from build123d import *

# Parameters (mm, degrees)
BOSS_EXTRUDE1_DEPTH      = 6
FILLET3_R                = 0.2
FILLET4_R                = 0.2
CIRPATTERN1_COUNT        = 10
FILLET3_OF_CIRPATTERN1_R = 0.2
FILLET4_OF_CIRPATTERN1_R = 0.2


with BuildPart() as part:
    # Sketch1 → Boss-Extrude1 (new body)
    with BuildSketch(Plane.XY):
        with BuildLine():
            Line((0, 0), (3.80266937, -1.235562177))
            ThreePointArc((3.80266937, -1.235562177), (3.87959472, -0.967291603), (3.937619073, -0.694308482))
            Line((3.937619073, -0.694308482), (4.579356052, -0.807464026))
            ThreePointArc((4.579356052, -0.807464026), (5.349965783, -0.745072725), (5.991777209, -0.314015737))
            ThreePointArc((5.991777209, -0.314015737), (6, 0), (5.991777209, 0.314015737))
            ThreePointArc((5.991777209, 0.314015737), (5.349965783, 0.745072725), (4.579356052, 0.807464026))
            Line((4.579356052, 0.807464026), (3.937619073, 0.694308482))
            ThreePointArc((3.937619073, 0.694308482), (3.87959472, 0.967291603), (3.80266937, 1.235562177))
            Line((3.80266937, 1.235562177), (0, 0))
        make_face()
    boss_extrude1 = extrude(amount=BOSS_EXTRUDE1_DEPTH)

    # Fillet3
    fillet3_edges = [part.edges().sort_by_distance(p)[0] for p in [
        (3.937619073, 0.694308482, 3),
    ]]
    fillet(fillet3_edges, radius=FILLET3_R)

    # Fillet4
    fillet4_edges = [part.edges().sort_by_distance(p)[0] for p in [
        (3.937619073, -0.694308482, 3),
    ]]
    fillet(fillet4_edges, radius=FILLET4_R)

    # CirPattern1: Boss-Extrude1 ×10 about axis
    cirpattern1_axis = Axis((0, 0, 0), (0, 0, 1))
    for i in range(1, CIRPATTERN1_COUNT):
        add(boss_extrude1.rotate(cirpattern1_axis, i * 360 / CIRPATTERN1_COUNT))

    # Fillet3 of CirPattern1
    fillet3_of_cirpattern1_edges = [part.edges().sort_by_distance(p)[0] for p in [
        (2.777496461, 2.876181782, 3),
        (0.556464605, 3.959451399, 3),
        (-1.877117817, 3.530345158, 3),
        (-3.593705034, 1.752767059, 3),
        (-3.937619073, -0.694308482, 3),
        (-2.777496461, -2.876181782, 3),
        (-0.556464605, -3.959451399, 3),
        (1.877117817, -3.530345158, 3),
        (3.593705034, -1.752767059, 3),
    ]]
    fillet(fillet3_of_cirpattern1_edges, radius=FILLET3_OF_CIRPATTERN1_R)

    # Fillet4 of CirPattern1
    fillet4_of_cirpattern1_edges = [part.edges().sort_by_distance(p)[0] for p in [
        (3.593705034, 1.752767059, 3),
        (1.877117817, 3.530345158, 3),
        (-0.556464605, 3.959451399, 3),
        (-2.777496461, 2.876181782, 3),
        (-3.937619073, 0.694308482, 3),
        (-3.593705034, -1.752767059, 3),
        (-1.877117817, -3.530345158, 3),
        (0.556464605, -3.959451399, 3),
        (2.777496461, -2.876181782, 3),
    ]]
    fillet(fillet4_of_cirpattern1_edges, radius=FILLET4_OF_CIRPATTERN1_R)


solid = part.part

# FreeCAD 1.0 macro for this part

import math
import FreeCAD as App
import Part
import Sketcher
from FreeCAD import Vector
Q = App.Units.Quantity


def edges_at(feature, points):
    """Names of the edges that pass closest to the given points."""
    edges = feature.Shape.Edges
    near = lambda p: min(range(len(edges)), key=lambda i: edges[i].distToShape(Part.Vertex(*p))[0])
    return sorted({f"Edge{near(p) + 1}" for p in points})

doc = App.newDocument("Part")
params = doc.addObject("Spreadsheet::Sheet", "Params")
for row, (alias, value) in enumerate([
    ("sketch1_radius", "6 mm"),
    ("pad1_length", "6 mm"),
    ("fillet_radius", "0.2 mm"),
    ("fillet2_radius", "0.2 mm"),
    ("fillet3_radius", "0.2 mm"),
    ("fillet4_radius", "0.2 mm"),
], start=1):
    params.set(f"A{row}", alias)
    params.set(f"B{row}", "=" + value)
    params.setAlias(f"B{row}", alias)

body = doc.addObject("PartDesign::Body", "Body")

sketch1 = body.newObject("Sketcher::SketchObject", "Sketch")
sketch1.AttachmentSupport = (doc.getObject("XY_Plane"), [""])
sketch1.MapMode = "FlatFace"
sketch1.addGeometry(Part.LineSegment(Vector(0, 0, 0), Vector(3.8, -1.2, 0)), False)
sketch1.addGeometry(Part.ArcOfCircle(Part.Circle(Vector(0, 0, 0), Vector(0, 0, 1), 4), math.radians(-18), math.radians(-10)), False)
sketch1.addGeometry(Part.LineSegment(Vector(3.9, -0.7, 0), Vector(4.6, -0.8, 0)), False)
sketch1.addGeometry(Part.ArcOfCircle(Part.Circle(Vector(4.8, 0.7, 0), Vector(0, 0, 1), 1.5), math.radians(-100), math.radians(-41)), False)
sketch1.addGeometry(Part.ArcOfCircle(Part.Circle(Vector(0, 0, 0), Vector(0, 0, 1), 6), math.radians(-3), math.radians(3)), False)
sketch1.addGeometry(Part.ArcOfCircle(Part.Circle(Vector(4.8, -0.7, 0), Vector(0, 0, 1), 1.5), math.radians(41), math.radians(100)), False)
sketch1.addGeometry(Part.LineSegment(Vector(4.6, 0.8, 0), Vector(3.9, 0.7, 0)), False)
sketch1.addGeometry(Part.ArcOfCircle(Part.Circle(Vector(0, 0, 0), Vector(0, 0, 1), 4), math.radians(10), math.radians(18)), False)
sketch1.addGeometry(Part.LineSegment(Vector(3.8, 1.2, 0), Vector(0, 0, 0)), False)
sketch1.addConstraint(Sketcher.Constraint("Coincident", 0, 2, 1, 1))
sketch1.addConstraint(Sketcher.Constraint("Coincident", 1, 2, 2, 1))
sketch1.addConstraint(Sketcher.Constraint("Tangent", 2, 2, 3, 1))
sketch1.addConstraint(Sketcher.Constraint("Coincident", 3, 2, 4, 1))
sketch1.addConstraint(Sketcher.Constraint("Coincident", 4, 2, 5, 1))
sketch1.addConstraint(Sketcher.Constraint("Tangent", 5, 2, 6, 1))
sketch1.addConstraint(Sketcher.Constraint("Coincident", 6, 2, 7, 1))
sketch1.addConstraint(Sketcher.Constraint("Coincident", 7, 2, 8, 1))
sketch1.addConstraint(Sketcher.Constraint("Coincident", 8, 2, 0, 1))
sketch1.addConstraint(Sketcher.Constraint("Coincident", 1, 3, -1, 1))
sketch1.addConstraint(Sketcher.Constraint("Coincident", 4, 3, -1, 1))
sketch1.addConstraint(Sketcher.Constraint("Coincident", 7, 3, -1, 1))
sketch1.addConstraint(Sketcher.Constraint("Coincident", 8, 2, -1, 1))
sketch1.addConstraint(Sketcher.Constraint("Equal", 3, 5))
sketch1.addConstraint(Sketcher.Constraint("Equal", 1, 7))
sketch1.addConstraint(Sketcher.Constraint("Symmetric", 3, 3, 5, 3, -1))
sketch1.addConstraint(Sketcher.Constraint("Vertical", 2, 2, 5, 2))
sketch1.addConstraint(Sketcher.Constraint("Vertical", 0, 2, 7, 2))
sketch1.addConstraint(Sketcher.Constraint("Radius", 4, 6.0))
sketch1.addConstraint(Sketcher.Constraint("Angle", 0, Q("-18 deg")))
sketch1.addConstraint(Sketcher.Constraint("Angle", 2, Q("-10 deg")))
sketch1.addConstraint(Sketcher.Constraint("Radius", 1, 3.998363))
sketch1.addConstraint(Sketcher.Constraint("Radius", 3, 1.530618))
sketch1.addConstraint(Sketcher.Constraint("DistanceY", -1, 1, 3, 3, 0.6999))
sketch1.addConstraint(Sketcher.Constraint("DistanceX", -1, 1, 1, 2, 3.937619))
sketch1.setExpression("Constraints[18]", "Params.sketch1_radius")
pad1 = body.newObject("PartDesign::Pad", "Pad")
pad1.Profile = sketch1
pad1.setExpression("Length", "Params.pad1_length")
doc.recompute()

fillet = body.newObject("PartDesign::Fillet", "Fillet")
fillet.Base = (pad1, edges_at(pad1, [(3.938, 0.694, 3)]))
fillet.setExpression("Radius", "Params.fillet_radius")
doc.recompute()

fillet2 = body.newObject("PartDesign::Fillet", "Fillet001")
fillet2.Base = (fillet, edges_at(fillet, [(3.938, -0.694, 3)]))
fillet2.setExpression("Radius", "Params.fillet2_radius")
doc.recompute()

polarpattern = body.newObject("PartDesign::PolarPattern", "PolarPattern")
polarpattern.Originals = [pad1]
polarpattern.Axis = (doc.getObject("Z_Axis"), [""])
polarpattern.Angle = 360
polarpattern.Occurrences = 10
body.Tip = polarpattern
doc.recompute()

fillet3 = body.newObject("PartDesign::Fillet", "Fillet002")
fillet3.Base = (polarpattern, edges_at(polarpattern, [
    (2.777, 2.876, 3),
    (0.556, 3.959, 3),
    (-1.877, 3.53, 3),
    (-3.594, 1.753, 3),
    (-3.938, -0.694, 3),
    (-2.777, -2.876, 3),
    (-0.556, -3.959, 3),
    (1.877, -3.53, 3),
    (3.594, -1.753, 3),
]))
fillet3.setExpression("Radius", "Params.fillet3_radius")
doc.recompute()

fillet4 = body.newObject("PartDesign::Fillet", "Fillet003")
fillet4.Base = (fillet3, edges_at(fillet3, [
    (3.594, 1.753, 3),
    (1.877, 3.53, 3),
    (-0.556, 3.959, 3),
    (-2.777, 2.876, 3),
    (-3.938, 0.694, 3),
    (-3.594, -1.753, 3),
    (-1.877, -3.53, 3),
    (0.556, -3.959, 3),
    (2.777, -2.876, 3),
]))
fillet4.setExpression("Radius", "Params.fillet4_radius")

doc.recompute()
